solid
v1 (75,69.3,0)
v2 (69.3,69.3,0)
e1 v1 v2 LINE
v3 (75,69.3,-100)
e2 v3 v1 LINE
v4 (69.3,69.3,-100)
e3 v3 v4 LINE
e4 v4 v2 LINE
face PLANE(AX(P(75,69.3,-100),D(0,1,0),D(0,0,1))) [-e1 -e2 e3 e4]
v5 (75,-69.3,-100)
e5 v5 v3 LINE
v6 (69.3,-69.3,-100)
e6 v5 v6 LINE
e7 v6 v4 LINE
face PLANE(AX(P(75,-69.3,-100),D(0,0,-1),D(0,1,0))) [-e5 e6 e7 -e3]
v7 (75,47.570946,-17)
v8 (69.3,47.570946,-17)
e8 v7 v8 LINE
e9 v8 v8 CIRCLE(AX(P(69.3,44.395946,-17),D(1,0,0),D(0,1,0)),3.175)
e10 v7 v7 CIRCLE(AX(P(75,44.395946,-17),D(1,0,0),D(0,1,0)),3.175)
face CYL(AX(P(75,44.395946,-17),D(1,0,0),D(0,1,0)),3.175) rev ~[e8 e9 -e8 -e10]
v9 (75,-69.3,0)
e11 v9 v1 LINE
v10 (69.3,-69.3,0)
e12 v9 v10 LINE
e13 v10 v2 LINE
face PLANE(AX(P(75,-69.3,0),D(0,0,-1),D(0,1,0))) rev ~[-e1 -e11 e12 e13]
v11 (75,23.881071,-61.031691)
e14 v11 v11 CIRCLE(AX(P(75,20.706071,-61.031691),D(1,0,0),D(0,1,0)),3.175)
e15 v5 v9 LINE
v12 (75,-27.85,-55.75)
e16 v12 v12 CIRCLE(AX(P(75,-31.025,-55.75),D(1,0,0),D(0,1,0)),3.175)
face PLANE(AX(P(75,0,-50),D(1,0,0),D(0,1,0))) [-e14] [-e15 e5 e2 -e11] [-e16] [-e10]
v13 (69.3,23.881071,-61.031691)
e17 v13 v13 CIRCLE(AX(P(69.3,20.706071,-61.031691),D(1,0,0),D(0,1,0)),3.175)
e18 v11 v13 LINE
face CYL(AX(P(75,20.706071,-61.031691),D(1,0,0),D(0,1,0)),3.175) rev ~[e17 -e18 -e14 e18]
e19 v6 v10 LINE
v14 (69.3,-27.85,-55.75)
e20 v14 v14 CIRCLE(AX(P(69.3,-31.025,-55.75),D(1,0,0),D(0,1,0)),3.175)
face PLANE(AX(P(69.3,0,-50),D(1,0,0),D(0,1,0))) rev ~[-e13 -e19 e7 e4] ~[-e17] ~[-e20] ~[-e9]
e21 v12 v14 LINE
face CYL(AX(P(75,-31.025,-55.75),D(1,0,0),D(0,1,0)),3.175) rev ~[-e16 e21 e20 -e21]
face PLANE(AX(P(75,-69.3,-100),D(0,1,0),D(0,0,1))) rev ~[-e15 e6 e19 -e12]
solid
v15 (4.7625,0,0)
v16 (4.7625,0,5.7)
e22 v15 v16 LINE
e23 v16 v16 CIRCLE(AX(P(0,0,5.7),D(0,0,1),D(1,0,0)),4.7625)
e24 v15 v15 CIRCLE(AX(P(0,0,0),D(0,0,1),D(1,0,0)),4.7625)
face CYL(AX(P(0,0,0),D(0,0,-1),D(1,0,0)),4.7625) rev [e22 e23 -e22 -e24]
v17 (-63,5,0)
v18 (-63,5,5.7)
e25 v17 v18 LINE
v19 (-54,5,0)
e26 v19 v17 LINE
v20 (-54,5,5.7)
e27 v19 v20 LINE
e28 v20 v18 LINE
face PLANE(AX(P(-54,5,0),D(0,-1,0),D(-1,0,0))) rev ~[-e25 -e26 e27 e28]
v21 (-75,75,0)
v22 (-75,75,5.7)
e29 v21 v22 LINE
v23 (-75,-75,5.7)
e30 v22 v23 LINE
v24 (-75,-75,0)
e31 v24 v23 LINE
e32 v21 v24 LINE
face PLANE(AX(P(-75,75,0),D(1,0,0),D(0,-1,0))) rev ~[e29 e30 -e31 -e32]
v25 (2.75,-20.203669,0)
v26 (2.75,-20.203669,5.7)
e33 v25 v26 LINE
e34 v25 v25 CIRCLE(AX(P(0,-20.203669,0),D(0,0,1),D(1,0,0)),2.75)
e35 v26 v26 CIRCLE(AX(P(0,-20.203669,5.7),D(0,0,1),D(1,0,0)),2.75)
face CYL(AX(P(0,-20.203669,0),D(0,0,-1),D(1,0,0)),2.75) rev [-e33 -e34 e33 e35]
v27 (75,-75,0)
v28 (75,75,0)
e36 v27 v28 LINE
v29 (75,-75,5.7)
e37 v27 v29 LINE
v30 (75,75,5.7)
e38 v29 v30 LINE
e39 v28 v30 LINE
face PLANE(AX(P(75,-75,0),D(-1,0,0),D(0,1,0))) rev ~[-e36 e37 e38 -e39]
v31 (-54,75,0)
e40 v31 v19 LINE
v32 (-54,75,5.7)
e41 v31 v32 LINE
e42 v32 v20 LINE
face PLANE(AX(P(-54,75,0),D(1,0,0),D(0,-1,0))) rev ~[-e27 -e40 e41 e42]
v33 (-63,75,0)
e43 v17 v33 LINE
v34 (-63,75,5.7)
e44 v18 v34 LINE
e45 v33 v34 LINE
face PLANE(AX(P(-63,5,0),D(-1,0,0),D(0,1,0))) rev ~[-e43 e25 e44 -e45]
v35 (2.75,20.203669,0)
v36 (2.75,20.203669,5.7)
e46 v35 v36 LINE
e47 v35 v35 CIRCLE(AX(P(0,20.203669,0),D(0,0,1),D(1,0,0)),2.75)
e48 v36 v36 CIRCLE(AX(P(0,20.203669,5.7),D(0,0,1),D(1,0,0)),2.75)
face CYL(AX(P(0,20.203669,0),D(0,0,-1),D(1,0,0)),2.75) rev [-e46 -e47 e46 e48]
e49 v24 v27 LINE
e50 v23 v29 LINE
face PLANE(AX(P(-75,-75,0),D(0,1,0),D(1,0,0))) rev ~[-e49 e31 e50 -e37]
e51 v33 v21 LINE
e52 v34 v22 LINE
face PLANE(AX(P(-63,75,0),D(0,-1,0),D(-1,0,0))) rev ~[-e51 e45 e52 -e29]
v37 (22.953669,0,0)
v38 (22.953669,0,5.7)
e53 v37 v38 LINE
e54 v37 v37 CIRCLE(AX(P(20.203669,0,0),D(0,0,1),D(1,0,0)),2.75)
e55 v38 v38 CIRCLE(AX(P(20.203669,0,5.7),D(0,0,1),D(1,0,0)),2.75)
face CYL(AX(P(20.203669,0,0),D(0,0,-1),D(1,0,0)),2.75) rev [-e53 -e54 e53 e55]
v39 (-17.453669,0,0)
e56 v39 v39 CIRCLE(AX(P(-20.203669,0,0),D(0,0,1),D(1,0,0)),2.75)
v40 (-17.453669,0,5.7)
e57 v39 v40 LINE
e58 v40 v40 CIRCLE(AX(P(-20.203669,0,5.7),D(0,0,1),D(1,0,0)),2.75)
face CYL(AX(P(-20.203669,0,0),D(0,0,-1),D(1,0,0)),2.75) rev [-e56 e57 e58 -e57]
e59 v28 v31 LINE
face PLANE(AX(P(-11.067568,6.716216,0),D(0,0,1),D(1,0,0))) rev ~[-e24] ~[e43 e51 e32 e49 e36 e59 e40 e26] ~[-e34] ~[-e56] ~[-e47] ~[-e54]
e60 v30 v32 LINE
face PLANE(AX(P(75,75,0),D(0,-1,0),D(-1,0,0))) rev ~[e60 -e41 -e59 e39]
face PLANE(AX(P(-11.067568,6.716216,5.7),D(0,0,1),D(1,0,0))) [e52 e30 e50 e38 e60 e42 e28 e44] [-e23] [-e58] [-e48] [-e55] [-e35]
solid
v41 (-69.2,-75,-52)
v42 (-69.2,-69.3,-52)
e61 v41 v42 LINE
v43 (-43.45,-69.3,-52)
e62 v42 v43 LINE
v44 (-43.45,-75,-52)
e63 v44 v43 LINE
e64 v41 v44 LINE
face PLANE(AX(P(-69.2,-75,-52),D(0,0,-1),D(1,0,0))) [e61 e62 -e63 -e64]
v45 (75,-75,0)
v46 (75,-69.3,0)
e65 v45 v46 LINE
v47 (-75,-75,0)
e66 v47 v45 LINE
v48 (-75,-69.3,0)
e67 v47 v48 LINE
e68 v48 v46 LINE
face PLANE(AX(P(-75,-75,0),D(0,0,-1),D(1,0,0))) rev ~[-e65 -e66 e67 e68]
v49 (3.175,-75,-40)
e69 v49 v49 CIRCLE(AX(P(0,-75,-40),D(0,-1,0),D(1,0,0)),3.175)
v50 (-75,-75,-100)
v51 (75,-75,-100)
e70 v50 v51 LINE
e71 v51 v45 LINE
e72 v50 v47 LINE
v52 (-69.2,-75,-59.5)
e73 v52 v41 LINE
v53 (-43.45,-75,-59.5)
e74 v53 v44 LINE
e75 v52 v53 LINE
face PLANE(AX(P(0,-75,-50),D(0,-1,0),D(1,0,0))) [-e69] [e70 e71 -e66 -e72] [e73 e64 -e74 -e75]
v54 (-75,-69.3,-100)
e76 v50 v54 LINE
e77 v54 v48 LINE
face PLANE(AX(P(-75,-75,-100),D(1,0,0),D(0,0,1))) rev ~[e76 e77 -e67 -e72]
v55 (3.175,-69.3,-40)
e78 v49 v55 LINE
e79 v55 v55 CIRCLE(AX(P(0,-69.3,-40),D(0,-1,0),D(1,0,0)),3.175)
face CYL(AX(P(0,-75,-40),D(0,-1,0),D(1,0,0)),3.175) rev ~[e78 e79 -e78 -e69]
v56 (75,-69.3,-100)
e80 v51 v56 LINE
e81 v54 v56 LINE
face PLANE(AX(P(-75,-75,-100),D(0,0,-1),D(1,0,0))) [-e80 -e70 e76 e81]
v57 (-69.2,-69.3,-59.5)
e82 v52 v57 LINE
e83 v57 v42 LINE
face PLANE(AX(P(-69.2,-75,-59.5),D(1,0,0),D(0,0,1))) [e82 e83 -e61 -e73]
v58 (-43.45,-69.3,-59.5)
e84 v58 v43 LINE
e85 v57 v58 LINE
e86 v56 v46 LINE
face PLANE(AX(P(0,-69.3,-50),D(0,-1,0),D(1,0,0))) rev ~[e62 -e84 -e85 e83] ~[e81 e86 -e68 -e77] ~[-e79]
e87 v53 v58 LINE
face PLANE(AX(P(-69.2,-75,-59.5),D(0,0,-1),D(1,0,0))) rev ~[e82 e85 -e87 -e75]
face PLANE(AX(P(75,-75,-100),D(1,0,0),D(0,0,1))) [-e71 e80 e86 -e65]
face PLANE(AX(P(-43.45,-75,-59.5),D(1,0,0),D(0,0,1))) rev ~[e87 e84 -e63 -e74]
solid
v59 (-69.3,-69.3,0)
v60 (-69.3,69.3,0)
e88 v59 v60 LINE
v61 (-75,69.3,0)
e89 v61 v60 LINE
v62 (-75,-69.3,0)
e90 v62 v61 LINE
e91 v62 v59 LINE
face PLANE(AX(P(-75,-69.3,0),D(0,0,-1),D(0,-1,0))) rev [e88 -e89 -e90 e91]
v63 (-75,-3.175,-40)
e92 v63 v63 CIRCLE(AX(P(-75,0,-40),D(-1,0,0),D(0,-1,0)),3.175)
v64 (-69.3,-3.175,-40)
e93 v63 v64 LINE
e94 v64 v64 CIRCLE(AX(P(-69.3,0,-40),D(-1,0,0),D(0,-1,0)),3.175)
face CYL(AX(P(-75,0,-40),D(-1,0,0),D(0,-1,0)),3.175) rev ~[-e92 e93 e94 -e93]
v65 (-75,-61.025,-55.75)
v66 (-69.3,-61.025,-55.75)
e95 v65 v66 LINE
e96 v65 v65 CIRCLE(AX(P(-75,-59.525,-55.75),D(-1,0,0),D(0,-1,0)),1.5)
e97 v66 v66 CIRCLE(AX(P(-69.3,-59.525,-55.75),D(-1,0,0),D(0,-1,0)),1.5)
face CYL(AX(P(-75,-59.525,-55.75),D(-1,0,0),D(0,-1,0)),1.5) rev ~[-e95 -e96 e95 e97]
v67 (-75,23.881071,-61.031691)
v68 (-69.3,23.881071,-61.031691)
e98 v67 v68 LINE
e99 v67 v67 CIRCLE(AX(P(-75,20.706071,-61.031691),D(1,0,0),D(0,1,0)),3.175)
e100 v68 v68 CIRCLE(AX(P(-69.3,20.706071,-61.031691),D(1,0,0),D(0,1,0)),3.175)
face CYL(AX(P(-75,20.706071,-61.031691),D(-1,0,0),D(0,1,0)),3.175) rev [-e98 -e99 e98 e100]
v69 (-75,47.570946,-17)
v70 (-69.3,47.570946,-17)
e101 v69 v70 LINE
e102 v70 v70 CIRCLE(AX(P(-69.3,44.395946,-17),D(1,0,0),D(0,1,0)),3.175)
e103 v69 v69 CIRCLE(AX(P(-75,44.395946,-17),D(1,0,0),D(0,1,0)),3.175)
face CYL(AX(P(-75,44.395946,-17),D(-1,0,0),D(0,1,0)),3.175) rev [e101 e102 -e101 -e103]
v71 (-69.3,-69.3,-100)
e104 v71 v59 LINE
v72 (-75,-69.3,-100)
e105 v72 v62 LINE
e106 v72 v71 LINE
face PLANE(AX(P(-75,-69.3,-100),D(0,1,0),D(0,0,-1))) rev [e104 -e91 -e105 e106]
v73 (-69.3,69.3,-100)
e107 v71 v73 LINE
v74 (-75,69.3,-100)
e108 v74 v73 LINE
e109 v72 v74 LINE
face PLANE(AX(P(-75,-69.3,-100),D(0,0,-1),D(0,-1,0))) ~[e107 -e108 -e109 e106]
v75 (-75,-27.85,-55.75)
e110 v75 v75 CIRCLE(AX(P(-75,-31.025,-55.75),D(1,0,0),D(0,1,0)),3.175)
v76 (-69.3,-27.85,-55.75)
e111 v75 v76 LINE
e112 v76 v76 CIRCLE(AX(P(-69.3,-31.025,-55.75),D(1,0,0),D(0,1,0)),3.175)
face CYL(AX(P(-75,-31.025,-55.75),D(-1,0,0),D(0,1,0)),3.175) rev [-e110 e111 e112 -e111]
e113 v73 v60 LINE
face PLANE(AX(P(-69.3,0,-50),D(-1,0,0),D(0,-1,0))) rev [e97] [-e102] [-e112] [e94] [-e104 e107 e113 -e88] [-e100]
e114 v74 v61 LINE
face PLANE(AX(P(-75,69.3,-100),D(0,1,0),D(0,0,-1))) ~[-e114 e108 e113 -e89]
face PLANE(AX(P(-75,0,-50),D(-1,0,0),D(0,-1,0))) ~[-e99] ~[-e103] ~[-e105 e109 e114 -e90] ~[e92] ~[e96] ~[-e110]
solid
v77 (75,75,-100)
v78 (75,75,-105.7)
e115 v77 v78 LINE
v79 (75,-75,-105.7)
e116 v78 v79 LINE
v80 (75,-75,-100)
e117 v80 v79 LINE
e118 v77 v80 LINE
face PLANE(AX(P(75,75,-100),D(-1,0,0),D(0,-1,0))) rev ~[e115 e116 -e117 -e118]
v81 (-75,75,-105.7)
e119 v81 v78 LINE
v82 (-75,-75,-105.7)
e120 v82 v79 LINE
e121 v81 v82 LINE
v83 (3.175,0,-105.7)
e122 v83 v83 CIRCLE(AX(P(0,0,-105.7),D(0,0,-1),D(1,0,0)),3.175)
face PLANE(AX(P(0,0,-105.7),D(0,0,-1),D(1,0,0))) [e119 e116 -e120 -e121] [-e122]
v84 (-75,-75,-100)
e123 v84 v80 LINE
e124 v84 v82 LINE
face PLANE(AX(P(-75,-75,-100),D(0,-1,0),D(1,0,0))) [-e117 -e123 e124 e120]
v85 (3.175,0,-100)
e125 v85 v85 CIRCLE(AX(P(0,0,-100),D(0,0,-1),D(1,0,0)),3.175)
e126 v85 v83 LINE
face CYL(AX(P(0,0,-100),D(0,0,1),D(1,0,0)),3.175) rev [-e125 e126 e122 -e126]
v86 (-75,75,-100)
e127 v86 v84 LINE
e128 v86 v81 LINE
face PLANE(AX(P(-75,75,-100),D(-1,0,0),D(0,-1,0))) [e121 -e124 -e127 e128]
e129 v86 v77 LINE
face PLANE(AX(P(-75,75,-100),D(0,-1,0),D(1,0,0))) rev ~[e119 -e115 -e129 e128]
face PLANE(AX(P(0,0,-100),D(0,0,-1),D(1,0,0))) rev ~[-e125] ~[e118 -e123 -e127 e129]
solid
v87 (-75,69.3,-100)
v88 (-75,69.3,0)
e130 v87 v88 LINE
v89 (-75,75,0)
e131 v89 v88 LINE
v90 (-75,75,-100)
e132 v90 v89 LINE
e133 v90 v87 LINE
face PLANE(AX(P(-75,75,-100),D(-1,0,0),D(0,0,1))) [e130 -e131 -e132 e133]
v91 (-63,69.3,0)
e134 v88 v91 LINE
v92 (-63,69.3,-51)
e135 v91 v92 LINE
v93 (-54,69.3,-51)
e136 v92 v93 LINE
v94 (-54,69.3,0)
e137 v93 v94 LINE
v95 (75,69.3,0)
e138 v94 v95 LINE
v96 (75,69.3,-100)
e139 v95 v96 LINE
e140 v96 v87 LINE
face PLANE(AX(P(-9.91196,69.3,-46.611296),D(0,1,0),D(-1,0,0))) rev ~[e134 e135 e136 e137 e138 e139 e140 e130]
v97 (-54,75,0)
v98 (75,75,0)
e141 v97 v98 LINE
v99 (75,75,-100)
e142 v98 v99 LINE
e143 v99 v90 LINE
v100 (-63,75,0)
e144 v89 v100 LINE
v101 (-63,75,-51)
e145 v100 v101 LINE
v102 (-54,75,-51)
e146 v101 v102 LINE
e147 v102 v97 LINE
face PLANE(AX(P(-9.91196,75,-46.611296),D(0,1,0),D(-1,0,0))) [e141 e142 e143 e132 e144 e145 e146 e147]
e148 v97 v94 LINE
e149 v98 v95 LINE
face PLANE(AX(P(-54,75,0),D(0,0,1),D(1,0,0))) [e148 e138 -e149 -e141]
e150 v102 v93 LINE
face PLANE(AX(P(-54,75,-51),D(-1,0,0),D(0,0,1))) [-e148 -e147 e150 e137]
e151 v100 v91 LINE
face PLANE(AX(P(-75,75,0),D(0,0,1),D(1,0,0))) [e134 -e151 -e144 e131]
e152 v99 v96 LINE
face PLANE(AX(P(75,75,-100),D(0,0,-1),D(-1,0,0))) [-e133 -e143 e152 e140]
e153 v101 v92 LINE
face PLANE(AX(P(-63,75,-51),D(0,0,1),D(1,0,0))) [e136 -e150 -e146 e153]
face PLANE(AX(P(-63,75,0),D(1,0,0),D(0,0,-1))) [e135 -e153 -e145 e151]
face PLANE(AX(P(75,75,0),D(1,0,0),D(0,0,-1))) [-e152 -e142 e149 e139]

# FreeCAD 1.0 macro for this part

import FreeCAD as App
import Part
import Sketcher


def add_polygon(sketch, points):
    """Adds a closed chain of lines whose ends are joined by coincident constraints."""
    first, n = sketch.GeometryCount, len(points)
    for a, b in zip(points, points[1:] + points[:1]):
        sketch.addGeometry(Part.LineSegment(App.Vector(*a, 0), App.Vector(*b, 0)), False)
    for i in range(n):
        sketch.addConstraint(Sketcher.Constraint("Coincident", first + i, 2, first + (i + 1) % n, 1))

doc = App.newDocument("Part")
body = doc.addObject("PartDesign::Body", "Body")

# Sketch on XY plane
sketch1 = body.newObject("Sketcher::SketchObject", "Sketch")
sketch1.AttachmentSupport = (doc.getObject("XY_Plane"), [""])
sketch1.MapMode = "FlatFace"
add_polygon(sketch1, [(75, -75), (75, 75), (-54, 75), (-54, 5), (-63, 5), (-63, 75), (-75, 75), (-75, -75)])  # lines 0-7
sketch1.addGeometry(Part.Circle(App.Vector(-20.2, 0, 0), App.Vector(0, 0, 1), 2.8), False)  # 8
sketch1.addGeometry(Part.Circle(App.Vector(0, -20.2, 0), App.Vector(0, 0, 1), 2.8), False)  # 9
sketch1.addGeometry(Part.Circle(App.Vector(0, 0, 0), App.Vector(0, 0, 1), 4.8), False)  # 10
sketch1.addGeometry(Part.Circle(App.Vector(20.2, 0, 0), App.Vector(0, 0, 1), 2.8), False)  # 11
sketch1.addGeometry(Part.Circle(App.Vector(0, 20.2, 0), App.Vector(0, 0, 1), 2.8), False)  # 12
sketch1.addConstraint([
    Sketcher.Constraint("Vertical", 0),
    Sketcher.Constraint("Horizontal", 1),
    Sketcher.Constraint("Vertical", 2),
    Sketcher.Constraint("Horizontal", 3),
    Sketcher.Constraint("Vertical", 4),
    Sketcher.Constraint("Horizontal", 5),
    Sketcher.Constraint("Vertical", 6),
    Sketcher.Constraint("Horizontal", 7),
    Sketcher.Constraint("Coincident", 10, 3, -1, 1),
    Sketcher.Constraint("Equal", 8, 9),
    Sketcher.Constraint("Equal", 9, 11),
    Sketcher.Constraint("Equal", 11, 12),
    Sketcher.Constraint("Symmetric", 8, 3, 11, 3, -1, 1),
    Sketcher.Constraint("Symmetric", 9, 3, 12, 3, -1, 1),
    Sketcher.Constraint("Symmetric", 0, 2, 6, 2, -1, 1),
    Sketcher.Constraint("PointOnObject", 8, 3, -1),
    Sketcher.Constraint("PointOnObject", 9, 3, -2),
    Sketcher.Constraint("Horizontal", 1, 2, 4, 2),
    Sketcher.Constraint("Equal", 7, 0),
    Sketcher.Constraint("Diameter", 8, 5.5),
    Sketcher.Constraint("DistanceX", 1, 2, 1, 1, 129.0),
    Sketcher.Constraint("DistanceX", 3, 2, 3, 1, 9.0),
    Sketcher.Constraint("DistanceX", 5, 2, 5, 1, 12.0),
    Sketcher.Constraint("DistanceY", 2, 2, 2, 1, 70.0),
    Sketcher.Constraint("Diameter", 10, 9.525),
    Sketcher.Constraint("DistanceX", 8, 3, -1, 1, 20.203669),
    Sketcher.Constraint("DistanceY", 9, 3, -1, 1, 20.203669),
])
pad1 = body.newObject("PartDesign::Pad", "Pad")
pad1.Profile = sketch1
pad1.Length = 5.7
body2 = doc.addObject("PartDesign::Body", "Body001")

# Sketch on XZ plane
sketch2 = body2.newObject("Sketcher::SketchObject", "Sketch001")
sketch2.AttachmentSupport = (doc.getObject("XZ_Plane001"), [""])
sketch2.MapMode = "FlatFace"
sketch2.AttachmentOffset = App.Placement(App.Vector(0, 0, 75), App.Rotation())
add_polygon(sketch2, [(-75, 0), (-75, -100), (75, -100), (75, 0)])  # lines 0-3
add_polygon(sketch2, [(-43.5, -59.5), (-69.2, -59.5), (-69.2, -52), (-43.5, -52)])  # lines 4-7
sketch2.addGeometry(Part.Circle(App.Vector(0, -40, 0), App.Vector(0, 0, 1), 3.2), False)  # 8
sketch2.addConstraint([
    Sketcher.Constraint("Vertical", 0),
    Sketcher.Constraint("Horizontal", 1),
    Sketcher.Constraint("Vertical", 2),
    Sketcher.Constraint("Horizontal", 3),
    Sketcher.Constraint("Horizontal", 4),
    Sketcher.Constraint("Vertical", 5),
    Sketcher.Constraint("Horizontal", 6),
    Sketcher.Constraint("Vertical", 7),
    Sketcher.Constraint("Symmetric", 2, 2, 3, 2, -1, 1),
    Sketcher.Constraint("PointOnObject", 8, 3, -2),
    Sketcher.Constraint("Diameter", 8, 6.35),
    Sketcher.Constraint("DistanceX", 1, 1, 1, 2, 150.0),
    Sketcher.Constraint("DistanceY", 0, 2, 0, 1, 100.0),
    Sketcher.Constraint("DistanceY", 5, 1, 5, 2, 7.5),
    Sketcher.Constraint("DistanceY", 8, 3, -1, 1, 40.0),
    Sketcher.Constraint("DistanceY", 5, 2, -1, 1, 52.0),
    Sketcher.Constraint("DistanceX", 4, 2, 4, 1, 25.75),
    Sketcher.Constraint("DistanceX", 4, 2, -1, 1, 69.2),
])
pad2 = body2.newObject("PartDesign::Pad", "Pad001")
pad2.Profile = sketch2
pad2.Length = 5.7
pad2.Reversed = True
body3 = doc.addObject("PartDesign::Body", "Body002")

# Sketch on YZ plane
sketch3 = body3.newObject("Sketcher::SketchObject", "Sketch002")
sketch3.AttachmentSupport = (doc.getObject("YZ_Plane002"), [""])
sketch3.MapMode = "FlatFace"
sketch3.AttachmentOffset = App.Placement(App.Vector(0, 0, 75), App.Rotation())
add_polygon(sketch3, [(-69.3, 0), (-69.3, -100), (69.3, -100), (69.3, 0)])  # lines 0-3
sketch3.addGeometry(Part.Circle(App.Vector(-31, -55.8, 0), App.Vector(0, 0, 1), 3.2), False)  # 4
sketch3.addGeometry(Part.Circle(App.Vector(20.7, -61, 0), App.Vector(0, 0, 1), 3.2), False)  # 5
sketch3.addGeometry(Part.Circle(App.Vector(44.4, -17, 0), App.Vector(0, 0, 1), 3.2), False)  # 6
sketch3.addConstraint([
    Sketcher.Constraint("Vertical", 0),
    Sketcher.Constraint("Horizontal", 1),
    Sketcher.Constraint("Vertical", 2),
    Sketcher.Constraint("Horizontal", 3),
    Sketcher.Constraint("Equal", 4, 5),
    Sketcher.Constraint("Equal", 5, 6),
    Sketcher.Constraint("Symmetric", 2, 2, 3, 2, -1, 1),
    Sketcher.Constraint("Diameter", 4, 6.35),
    Sketcher.Constraint("DistanceY", 0, 2, 0, 1, 100.0),
    Sketcher.Constraint("DistanceX", 1, 1, 1, 2, 138.6),
    Sketcher.Constraint("DistanceY", 6, 3, -1, 1, 17.0),
    Sketcher.Constraint("DistanceY", 4, 3, -1, 1, 55.75),
    Sketcher.Constraint("DistanceX", 4, 3, -1, 1, 31.025),
    Sketcher.Constraint("DistanceX", -1, 1, 5, 3, 20.706071),
    Sketcher.Constraint("DistanceY", 5, 3, -1, 1, 61.031691),
    Sketcher.Constraint("DistanceX", -1, 1, 6, 3, 44.395946),
])
pad3 = body3.newObject("PartDesign::Pad", "Pad002")
pad3.Profile = sketch3
pad3.Length = 5.7
pad3.Reversed = True
body4 = doc.addObject("PartDesign::Body", "Body003")

# Sketch on XY plane
sketch4 = body4.newObject("Sketcher::SketchObject", "Sketch003")
sketch4.AttachmentSupport = (doc.getObject("XY_Plane003"), [""])
sketch4.MapMode = "FlatFace"
sketch4.AttachmentOffset = App.Placement(App.Vector(0, 0, -100), App.Rotation())
add_polygon(sketch4, [(-75, -75), (-75, 75), (75, 75), (75, -75)])  # lines 0-3
sketch4.addGeometry(Part.Circle(App.Vector(0, 0, 0), App.Vector(0, 0, 1), 3.2), False)  # 4
sketch4.addConstraint([
    Sketcher.Constraint("Vertical", 0),
    Sketcher.Constraint("Horizontal", 1),
    Sketcher.Constraint("Vertical", 2),
    Sketcher.Constraint("Horizontal", 3),
    Sketcher.Constraint("Coincident", 4, 3, -1, 1),
    Sketcher.Constraint("Symmetric", 0, 2, 2, 2, -1, 1),
    Sketcher.Constraint("Equal", 3, 0),
    Sketcher.Constraint("Diameter", 4, 6.35),
    Sketcher.Constraint("DistanceX", 1, 1, 1, 2, 150.0),
])
pad4 = body4.newObject("PartDesign::Pad", "Pad003")
pad4.Profile = sketch4
pad4.Length = 5.7
pad4.Reversed = True
body5 = doc.addObject("PartDesign::Body", "Body004")
doc.recompute()

mirroring = doc.addObject("Part::Mirroring", "Mirroring")
mirroring.Source = body3
mirroring.Base = App.Vector(0, 0, 0)
mirroring.Normal = App.Vector(1, 0, 0)
body5.BaseFeature = mirroring
doc.recompute()

# Sketch on YZ plane
sketch5 = body5.newObject("Sketcher::SketchObject", "Sketch004")
sketch5.AttachmentSupport = (doc.getObject("YZ_Plane004"), [""])
sketch5.MapMode = "FlatFace"
sketch5.AttachmentOffset = App.Placement(App.Vector(0, 0, -75), App.Rotation())
sketch5.addGeometry([
    Part.Circle(App.Vector(-59.5, -55.8, 0), App.Vector(0, 0, 1), 1.5),
    Part.Circle(App.Vector(0, -40, 0), App.Vector(0, 0, 1), 3.2),
], False)
sketch5.addConstraint([
    Sketcher.Constraint("PointOnObject", 1, 3, -2),
    Sketcher.Constraint("Diameter", 0, 3.0),
    Sketcher.Constraint("Diameter", 1, 6.35),
    Sketcher.Constraint("DistanceY", 1, 3, -1, 1, 40.0),
    Sketcher.Constraint("DistanceY", 0, 3, -1, 1, 55.75),
    Sketcher.Constraint("DistanceX", 0, 3, -1, 1, 59.525),
])
pocket1 = body5.newObject("PartDesign::Pocket", "Pocket")
pocket1.Profile = sketch5
pocket1.Length = 25
pocket1.Reversed = True
body6 = doc.addObject("PartDesign::Body", "Body005")

# Sketch on XZ plane
sketch6 = body6.newObject("Sketcher::SketchObject", "Sketch005")
sketch6.AttachmentSupport = (doc.getObject("XZ_Plane005"), [""])
sketch6.MapMode = "FlatFace"
sketch6.AttachmentOffset = App.Placement(App.Vector(0, 0, -75), App.Rotation())
add_polygon(sketch6, [(-54, 0), (75, 0), (75, -100), (-75, -100), (-75, 0), (-63, 0), (-63, -51), (-54, -51)])  # lines 0-7
sketch6.addConstraint([
    Sketcher.Constraint("Horizontal", 0),
    Sketcher.Constraint("Vertical", 1),
    Sketcher.Constraint("Horizontal", 2),
    Sketcher.Constraint("Vertical", 3),
    Sketcher.Constraint("Horizontal", 4),
    Sketcher.Constraint("Vertical", 5),
    Sketcher.Constraint("Horizontal", 6),
    Sketcher.Constraint("Vertical", 7),
    Sketcher.Constraint("Symmetric", 0, 2, 3, 2, -1, 1),
    Sketcher.Constraint("PointOnObject", 0, 2, -1),
    Sketcher.Constraint("DistanceX", 0, 1, 0, 2, 129.0),
    Sketcher.Constraint("DistanceX", 2, 2, 2, 1, 150.0),
    Sketcher.Constraint("DistanceX", 4, 1, 4, 2, 12.0),
    Sketcher.Constraint("DistanceY", 1, 2, 1, 1, 100.0),
    Sketcher.Constraint("DistanceY", 5, 2, 5, 1, 51.0),
])
pad5 = body6.newObject("PartDesign::Pad", "Pad004")
pad5.Profile = sketch6
pad5.Length = 5.7
mirroring.Visibility = False

doc.recompute()
